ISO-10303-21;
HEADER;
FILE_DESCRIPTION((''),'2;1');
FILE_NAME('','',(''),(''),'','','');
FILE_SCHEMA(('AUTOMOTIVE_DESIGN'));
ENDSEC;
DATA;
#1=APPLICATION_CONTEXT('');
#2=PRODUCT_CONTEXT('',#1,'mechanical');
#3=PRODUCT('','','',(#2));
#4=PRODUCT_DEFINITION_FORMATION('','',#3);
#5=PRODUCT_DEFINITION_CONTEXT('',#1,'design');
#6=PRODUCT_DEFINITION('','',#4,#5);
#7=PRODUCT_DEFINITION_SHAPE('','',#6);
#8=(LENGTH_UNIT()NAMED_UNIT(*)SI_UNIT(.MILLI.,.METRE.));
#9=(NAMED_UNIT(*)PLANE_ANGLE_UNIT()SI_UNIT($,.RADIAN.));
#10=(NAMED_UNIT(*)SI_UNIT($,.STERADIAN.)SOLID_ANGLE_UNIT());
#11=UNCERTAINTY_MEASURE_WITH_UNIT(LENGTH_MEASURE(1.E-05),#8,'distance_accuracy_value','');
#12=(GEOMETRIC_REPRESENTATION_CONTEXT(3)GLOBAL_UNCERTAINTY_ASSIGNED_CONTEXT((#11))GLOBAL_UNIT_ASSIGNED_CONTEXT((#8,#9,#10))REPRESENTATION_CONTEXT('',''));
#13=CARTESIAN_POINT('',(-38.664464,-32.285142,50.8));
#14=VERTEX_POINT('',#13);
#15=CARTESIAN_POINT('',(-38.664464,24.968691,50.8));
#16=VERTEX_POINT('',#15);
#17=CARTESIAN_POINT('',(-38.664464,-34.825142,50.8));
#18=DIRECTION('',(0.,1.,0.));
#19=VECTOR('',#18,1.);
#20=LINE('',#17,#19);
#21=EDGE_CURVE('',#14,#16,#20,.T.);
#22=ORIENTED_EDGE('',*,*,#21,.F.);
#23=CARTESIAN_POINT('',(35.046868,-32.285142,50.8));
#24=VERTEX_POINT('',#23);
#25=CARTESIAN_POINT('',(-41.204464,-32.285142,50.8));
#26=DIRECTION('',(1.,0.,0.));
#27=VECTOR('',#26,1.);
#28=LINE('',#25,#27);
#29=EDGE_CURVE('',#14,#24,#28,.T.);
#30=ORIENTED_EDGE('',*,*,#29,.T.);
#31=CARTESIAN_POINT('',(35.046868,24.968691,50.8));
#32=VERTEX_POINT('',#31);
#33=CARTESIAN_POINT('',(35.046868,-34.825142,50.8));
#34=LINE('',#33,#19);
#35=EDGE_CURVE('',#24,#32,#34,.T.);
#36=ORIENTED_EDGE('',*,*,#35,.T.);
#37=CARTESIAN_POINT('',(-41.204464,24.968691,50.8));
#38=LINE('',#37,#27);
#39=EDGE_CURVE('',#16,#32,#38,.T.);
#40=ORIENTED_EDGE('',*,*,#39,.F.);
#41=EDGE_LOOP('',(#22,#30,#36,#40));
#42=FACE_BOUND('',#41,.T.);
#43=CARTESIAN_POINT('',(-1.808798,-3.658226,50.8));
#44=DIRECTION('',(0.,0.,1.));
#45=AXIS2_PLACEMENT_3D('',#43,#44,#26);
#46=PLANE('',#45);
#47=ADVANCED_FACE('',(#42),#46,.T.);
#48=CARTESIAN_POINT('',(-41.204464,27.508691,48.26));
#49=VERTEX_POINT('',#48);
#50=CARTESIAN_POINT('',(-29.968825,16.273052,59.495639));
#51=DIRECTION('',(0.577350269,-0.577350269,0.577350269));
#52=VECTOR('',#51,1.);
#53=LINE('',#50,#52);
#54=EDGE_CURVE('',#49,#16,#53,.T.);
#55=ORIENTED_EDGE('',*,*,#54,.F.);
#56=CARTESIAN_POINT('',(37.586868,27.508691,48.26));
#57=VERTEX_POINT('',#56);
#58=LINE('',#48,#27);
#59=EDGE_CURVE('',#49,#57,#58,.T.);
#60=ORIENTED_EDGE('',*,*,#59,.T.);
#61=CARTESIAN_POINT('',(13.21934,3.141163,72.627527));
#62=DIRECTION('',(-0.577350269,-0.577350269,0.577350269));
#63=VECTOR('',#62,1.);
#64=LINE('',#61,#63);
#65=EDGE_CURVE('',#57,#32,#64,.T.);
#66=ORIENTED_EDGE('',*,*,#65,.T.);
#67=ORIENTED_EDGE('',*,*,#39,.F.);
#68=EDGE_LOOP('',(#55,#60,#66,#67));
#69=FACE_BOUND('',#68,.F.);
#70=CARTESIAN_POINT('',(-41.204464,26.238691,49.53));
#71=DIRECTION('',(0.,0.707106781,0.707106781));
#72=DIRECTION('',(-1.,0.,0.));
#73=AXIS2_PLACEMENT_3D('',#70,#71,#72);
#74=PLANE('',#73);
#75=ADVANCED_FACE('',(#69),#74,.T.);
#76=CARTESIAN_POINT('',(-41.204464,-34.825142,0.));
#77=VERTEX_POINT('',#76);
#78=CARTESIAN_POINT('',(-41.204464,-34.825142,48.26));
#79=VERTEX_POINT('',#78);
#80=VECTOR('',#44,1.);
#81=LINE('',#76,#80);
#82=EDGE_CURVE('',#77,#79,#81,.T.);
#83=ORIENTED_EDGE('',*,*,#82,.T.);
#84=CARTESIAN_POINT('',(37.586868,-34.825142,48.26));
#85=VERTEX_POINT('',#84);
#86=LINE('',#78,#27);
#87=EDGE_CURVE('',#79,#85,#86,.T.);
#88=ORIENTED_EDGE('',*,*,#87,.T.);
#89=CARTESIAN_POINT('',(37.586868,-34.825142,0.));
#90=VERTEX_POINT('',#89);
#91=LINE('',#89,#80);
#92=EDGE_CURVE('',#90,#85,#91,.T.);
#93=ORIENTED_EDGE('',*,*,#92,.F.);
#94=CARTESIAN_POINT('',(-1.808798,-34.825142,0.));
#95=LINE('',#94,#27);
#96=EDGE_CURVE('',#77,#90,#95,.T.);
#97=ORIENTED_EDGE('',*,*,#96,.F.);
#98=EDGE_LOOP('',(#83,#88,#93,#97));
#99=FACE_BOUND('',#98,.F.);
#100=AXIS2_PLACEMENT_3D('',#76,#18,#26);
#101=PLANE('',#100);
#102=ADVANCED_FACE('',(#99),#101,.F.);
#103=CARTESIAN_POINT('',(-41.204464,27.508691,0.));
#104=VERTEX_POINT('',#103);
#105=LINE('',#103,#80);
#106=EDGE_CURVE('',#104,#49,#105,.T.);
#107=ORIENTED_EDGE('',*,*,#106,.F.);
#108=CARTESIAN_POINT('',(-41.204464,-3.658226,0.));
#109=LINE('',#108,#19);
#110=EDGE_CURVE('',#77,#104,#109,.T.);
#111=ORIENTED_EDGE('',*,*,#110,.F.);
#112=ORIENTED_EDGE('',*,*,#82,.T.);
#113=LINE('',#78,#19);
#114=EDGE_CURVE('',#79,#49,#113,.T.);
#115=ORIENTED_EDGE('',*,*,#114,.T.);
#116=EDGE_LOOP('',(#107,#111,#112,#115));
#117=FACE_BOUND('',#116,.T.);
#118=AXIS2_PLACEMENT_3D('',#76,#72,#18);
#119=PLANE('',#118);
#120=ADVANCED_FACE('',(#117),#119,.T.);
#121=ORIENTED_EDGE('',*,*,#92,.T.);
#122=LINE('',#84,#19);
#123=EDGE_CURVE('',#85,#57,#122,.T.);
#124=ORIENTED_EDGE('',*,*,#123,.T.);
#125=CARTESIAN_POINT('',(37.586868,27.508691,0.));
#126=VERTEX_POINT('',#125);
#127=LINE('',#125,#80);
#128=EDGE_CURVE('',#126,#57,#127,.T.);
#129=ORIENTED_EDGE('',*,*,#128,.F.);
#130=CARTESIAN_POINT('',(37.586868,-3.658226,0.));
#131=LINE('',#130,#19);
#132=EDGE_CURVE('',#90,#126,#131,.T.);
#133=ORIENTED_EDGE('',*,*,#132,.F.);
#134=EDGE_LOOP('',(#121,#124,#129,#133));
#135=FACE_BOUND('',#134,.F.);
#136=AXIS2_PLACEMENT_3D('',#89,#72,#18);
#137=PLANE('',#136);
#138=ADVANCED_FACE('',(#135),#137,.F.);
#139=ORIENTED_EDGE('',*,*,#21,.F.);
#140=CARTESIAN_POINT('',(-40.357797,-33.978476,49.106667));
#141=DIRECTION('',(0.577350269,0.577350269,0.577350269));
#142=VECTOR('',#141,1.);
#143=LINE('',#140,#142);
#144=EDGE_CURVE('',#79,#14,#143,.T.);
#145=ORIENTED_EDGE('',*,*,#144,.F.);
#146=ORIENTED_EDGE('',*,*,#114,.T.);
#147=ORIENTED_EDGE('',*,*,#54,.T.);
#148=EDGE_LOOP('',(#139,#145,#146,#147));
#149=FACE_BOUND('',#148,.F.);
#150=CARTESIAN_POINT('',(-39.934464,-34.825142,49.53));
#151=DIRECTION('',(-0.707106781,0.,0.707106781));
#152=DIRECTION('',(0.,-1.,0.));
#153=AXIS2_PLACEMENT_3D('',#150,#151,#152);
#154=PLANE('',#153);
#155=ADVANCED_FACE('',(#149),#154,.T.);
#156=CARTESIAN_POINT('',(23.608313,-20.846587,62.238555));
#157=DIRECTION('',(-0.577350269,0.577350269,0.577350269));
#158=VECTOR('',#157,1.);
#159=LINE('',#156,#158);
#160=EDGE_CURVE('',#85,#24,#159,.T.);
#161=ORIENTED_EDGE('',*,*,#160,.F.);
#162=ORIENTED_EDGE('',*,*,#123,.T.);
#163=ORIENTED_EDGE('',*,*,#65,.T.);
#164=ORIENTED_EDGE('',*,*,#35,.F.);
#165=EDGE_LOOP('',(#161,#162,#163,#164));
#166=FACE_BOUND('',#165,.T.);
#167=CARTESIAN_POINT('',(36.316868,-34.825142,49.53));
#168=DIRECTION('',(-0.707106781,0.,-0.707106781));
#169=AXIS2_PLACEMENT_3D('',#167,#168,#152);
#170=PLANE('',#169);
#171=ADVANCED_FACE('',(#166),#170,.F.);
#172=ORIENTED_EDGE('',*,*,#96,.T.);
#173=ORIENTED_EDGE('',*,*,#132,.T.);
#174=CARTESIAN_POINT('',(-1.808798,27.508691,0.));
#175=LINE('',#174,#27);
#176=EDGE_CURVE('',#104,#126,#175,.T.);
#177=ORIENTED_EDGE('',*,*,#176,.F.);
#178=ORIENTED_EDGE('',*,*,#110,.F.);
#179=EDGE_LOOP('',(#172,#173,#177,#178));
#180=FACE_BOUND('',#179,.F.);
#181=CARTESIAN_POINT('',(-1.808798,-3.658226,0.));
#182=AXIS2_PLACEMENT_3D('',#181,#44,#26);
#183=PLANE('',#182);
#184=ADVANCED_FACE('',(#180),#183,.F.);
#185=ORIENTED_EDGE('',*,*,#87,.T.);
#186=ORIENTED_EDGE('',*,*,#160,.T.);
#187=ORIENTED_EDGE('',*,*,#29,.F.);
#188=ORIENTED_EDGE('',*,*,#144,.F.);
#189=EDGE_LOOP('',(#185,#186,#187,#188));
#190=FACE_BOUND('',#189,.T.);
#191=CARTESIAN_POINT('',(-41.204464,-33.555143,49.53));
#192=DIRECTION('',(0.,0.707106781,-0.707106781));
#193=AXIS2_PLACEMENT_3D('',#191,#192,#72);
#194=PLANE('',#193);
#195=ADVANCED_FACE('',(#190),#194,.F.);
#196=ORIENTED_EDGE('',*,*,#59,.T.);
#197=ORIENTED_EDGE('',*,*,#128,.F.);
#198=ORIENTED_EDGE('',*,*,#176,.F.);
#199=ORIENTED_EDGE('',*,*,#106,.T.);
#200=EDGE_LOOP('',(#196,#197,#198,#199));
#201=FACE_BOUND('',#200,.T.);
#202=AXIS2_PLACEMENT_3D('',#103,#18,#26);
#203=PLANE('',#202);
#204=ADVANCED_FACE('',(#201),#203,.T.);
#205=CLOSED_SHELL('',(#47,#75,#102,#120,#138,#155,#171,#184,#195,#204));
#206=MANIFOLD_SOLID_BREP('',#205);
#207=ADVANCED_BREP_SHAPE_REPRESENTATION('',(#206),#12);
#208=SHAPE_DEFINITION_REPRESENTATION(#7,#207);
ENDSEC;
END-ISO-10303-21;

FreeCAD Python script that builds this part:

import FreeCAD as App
import Part
import Sketcher

V = App.Vector
Q = App.Units.Quantity


def edges_at(feature, points):
    """Names of the edges that pass closest to the given points."""
    edges = feature.Shape.Edges
    near = lambda p: min(range(len(edges)), key=lambda i: edges[i].distToShape(Part.Vertex(*p))[0])
    return sorted({f"Edge{near(p) + 1}" for p in points})

doc = App.newDocument("Part")
params = doc.addObject("Spreadsheet::Sheet", "Params")
for row, (alias, value) in enumerate([
    ("pad1_length", "2 in"),
    ("chamfer_size", "0.1 in"),
    ("chamfer_size2", "0.1 in"),
], start=1):
    params.set(f"A{row}", alias)
    params.set(f"B{row}", "=" + value)
    params.setAlias(f"B{row}", alias)

body = doc.addObject("PartDesign::Body", "Body")

# Sketch on XY plane
sketch1 = doc.addObject("Sketcher::SketchObject", "Sketch")
body.addObject(sketch1)
sketch1.AttachmentSupport = (doc.XY_Plane, [""])
sketch1.MapMode = "FlatFace"
sketch1.addGeometry(Part.LineSegment(V(-41, 28, 0), V(-41, -35, 0)), False)
sketch1.addGeometry(Part.LineSegment(V(-41, -35, 0), V(38, -35, 0)), False)
sketch1.addGeometry(Part.LineSegment(V(38, -35, 0), V(38, 28, 0)), False)
sketch1.addGeometry(Part.LineSegment(V(38, 28, 0), V(-41, 28, 0)), False)
sketch1.addConstraint(Sketcher.Constraint("Coincident", 0, 2, 1, 1))
sketch1.addConstraint(Sketcher.Constraint("Coincident", 1, 2, 2, 1))
sketch1.addConstraint(Sketcher.Constraint("Coincident", 2, 2, 3, 1))
sketch1.addConstraint(Sketcher.Constraint("Coincident", 3, 2, 0, 1))
sketch1.addConstraint(Sketcher.Constraint("Vertical", 0))
sketch1.addConstraint(Sketcher.Constraint("Horizontal", 1))
sketch1.addConstraint(Sketcher.Constraint("Vertical", 2))
sketch1.addConstraint(Sketcher.Constraint("Horizontal", 3))
sketch1.addConstraint(Sketcher.Constraint("DistanceX", 1, 1, 1, 2, Q("78.791332 mm")))
sketch1.addConstraint(Sketcher.Constraint("DistanceY", 0, 2, 0, 1, Q("62.333833 mm")))
sketch1.addConstraint(Sketcher.Constraint("DistanceX", -1, 1, 1, 2, Q("37.586868 mm")))
sketch1.addConstraint(Sketcher.Constraint("DistanceY", -1, 1, 2, 2, Q("27.508691 mm")))
pad1 = doc.addObject("PartDesign::Pad", "Pad")
body.addObject(pad1)
pad1.Profile = sketch1
pad1.setExpression("Length", "Params.pad1_length")
doc.recompute()

chamfer = doc.addObject("PartDesign::Chamfer", "Chamfer")
body.addObject(chamfer)
chamfer.Base = (pad1, edges_at(pad1, [
    (-1.809, 27.509, 50.8),
    (-41.204, -3.658, 50.8),
    (-1.809, -34.825, 50.8),
    (37.587, -3.658, 50.8),
]))
chamfer.ChamferType = "Two distances"
chamfer.setExpression("Size", "Params.chamfer_size")
chamfer.setExpression("Size2", "Params.chamfer_size2")

doc.recompute()
